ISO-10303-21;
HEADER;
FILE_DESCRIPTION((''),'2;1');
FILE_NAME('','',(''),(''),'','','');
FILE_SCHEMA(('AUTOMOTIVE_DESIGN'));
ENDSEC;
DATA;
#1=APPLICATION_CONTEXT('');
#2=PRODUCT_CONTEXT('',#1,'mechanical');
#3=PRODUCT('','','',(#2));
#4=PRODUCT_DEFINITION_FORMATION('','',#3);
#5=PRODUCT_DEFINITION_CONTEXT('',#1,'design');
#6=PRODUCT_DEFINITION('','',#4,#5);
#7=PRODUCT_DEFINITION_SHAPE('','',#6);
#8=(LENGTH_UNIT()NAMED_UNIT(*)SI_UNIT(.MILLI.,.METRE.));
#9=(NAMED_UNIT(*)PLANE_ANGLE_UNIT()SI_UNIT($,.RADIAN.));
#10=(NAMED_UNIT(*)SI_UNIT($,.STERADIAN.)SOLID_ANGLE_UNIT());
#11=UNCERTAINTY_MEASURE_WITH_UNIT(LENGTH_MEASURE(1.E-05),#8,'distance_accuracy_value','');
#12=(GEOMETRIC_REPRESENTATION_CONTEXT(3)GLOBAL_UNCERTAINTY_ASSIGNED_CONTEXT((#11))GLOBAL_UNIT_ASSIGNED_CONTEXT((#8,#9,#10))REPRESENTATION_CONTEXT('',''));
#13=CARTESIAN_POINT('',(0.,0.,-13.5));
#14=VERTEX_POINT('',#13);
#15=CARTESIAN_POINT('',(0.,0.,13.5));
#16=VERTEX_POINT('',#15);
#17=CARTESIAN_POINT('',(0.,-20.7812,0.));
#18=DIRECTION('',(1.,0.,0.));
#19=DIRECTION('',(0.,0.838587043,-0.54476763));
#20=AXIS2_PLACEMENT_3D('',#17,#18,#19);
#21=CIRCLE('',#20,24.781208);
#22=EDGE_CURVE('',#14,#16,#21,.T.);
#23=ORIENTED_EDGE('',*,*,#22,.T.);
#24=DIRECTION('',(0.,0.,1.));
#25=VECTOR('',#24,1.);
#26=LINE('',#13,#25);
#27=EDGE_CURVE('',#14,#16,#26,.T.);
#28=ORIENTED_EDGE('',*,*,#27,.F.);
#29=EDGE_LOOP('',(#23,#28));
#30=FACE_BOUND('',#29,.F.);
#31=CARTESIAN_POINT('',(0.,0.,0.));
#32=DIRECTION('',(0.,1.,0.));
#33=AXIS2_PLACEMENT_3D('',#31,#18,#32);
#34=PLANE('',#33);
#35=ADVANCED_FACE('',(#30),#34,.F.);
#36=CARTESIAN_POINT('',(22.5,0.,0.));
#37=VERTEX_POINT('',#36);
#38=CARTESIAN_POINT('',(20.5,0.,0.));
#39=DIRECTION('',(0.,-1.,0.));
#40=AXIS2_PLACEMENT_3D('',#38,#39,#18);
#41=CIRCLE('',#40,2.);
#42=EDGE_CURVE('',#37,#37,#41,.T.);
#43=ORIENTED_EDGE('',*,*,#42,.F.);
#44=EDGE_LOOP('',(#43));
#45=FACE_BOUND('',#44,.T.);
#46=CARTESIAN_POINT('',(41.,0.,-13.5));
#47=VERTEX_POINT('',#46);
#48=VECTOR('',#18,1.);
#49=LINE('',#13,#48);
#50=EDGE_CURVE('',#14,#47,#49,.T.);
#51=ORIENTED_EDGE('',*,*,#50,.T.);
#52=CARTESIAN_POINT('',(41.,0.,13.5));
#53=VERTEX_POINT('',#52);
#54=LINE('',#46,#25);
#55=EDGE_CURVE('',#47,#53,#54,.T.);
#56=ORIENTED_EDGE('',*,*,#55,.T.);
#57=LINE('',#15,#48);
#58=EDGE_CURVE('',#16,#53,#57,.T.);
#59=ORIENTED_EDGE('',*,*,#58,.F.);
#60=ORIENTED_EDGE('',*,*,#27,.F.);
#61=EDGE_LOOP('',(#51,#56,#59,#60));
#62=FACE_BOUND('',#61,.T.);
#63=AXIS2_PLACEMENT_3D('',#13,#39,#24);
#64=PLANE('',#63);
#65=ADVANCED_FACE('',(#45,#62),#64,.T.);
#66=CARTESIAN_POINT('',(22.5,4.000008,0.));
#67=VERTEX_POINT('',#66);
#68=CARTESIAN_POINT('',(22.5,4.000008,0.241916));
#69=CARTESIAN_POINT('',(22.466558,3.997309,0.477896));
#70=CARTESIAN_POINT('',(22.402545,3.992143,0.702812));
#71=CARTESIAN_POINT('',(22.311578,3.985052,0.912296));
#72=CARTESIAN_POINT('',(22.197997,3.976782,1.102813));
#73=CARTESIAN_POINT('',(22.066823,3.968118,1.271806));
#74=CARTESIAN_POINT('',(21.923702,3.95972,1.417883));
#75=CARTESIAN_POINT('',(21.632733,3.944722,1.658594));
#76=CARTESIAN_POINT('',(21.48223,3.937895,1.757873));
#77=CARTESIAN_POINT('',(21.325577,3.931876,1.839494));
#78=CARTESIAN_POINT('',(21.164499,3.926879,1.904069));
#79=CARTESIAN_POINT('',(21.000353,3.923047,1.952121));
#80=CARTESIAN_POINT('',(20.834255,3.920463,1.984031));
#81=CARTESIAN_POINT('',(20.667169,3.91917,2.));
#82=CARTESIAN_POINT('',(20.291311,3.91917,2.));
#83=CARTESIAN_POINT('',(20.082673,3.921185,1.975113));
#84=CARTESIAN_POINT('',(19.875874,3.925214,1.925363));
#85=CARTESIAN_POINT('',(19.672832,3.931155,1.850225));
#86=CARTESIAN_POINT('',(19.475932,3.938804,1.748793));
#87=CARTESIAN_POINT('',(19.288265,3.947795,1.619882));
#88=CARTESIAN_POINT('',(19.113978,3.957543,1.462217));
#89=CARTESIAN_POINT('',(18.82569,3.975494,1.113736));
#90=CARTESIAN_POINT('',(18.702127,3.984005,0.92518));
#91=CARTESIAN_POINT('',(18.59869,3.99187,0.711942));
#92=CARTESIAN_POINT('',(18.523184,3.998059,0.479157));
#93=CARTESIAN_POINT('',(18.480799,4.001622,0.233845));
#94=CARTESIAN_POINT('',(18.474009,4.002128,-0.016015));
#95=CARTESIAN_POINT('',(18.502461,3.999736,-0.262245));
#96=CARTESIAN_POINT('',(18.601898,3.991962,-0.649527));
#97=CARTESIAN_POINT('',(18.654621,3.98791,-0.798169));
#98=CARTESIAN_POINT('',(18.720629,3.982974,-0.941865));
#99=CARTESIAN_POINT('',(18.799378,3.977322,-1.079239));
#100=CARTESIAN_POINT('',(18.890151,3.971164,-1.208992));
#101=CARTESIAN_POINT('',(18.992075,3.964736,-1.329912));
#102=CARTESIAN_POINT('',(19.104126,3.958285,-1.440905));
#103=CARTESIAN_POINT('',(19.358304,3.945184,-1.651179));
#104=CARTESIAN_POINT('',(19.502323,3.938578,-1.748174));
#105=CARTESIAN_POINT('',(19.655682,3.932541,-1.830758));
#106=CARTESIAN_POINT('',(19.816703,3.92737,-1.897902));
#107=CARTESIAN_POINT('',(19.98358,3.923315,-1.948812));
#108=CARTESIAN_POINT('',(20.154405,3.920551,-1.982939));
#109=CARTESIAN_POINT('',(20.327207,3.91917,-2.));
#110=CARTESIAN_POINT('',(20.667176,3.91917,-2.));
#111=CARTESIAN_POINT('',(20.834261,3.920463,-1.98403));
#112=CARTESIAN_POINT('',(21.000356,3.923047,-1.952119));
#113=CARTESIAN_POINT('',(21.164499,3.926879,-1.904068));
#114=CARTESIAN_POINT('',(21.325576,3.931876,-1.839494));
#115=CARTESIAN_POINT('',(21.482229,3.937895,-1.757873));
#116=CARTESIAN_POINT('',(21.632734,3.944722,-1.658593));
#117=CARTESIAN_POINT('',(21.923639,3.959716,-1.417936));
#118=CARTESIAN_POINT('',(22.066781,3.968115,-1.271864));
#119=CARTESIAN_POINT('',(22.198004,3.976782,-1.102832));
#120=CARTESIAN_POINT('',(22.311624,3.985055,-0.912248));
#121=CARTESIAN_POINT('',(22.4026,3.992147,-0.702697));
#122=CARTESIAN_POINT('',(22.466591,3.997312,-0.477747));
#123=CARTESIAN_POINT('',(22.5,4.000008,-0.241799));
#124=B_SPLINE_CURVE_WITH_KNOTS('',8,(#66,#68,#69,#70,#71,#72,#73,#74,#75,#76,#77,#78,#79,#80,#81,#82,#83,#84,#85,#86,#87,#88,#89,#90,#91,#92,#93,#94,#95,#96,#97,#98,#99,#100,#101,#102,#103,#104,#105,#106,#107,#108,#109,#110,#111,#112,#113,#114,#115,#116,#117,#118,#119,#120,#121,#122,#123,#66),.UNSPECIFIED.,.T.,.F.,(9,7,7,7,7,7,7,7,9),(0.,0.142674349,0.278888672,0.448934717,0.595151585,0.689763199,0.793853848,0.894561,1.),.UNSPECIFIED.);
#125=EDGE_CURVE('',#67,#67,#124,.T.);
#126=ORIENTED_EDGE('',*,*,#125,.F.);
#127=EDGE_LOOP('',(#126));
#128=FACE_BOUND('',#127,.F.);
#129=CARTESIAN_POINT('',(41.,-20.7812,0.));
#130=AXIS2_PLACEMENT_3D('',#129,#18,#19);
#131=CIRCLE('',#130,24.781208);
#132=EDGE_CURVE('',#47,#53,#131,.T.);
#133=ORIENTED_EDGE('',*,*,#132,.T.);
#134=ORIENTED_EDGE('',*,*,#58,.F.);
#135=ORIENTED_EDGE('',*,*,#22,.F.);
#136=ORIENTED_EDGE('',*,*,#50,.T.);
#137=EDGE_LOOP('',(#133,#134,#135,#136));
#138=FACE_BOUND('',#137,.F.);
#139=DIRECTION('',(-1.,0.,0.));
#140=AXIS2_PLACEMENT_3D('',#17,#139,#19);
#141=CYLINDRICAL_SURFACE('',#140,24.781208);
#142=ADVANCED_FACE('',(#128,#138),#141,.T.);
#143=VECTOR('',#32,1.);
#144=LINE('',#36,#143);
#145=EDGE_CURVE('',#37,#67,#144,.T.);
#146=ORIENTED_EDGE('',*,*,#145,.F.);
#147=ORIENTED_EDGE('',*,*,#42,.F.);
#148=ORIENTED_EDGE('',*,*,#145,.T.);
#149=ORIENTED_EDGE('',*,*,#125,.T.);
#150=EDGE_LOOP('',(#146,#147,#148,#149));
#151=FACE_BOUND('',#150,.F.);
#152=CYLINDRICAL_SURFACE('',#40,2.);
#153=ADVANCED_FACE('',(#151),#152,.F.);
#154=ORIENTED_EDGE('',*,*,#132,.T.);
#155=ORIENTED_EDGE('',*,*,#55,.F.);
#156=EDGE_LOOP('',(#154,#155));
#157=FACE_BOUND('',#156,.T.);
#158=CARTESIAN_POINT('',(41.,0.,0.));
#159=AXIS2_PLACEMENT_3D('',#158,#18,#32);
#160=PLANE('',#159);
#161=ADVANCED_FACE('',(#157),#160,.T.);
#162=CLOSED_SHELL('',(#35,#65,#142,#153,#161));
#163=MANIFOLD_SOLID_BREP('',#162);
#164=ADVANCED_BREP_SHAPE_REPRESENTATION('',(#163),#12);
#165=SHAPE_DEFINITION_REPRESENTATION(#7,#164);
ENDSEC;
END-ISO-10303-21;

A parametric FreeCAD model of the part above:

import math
import FreeCAD as App
import Part
import Sketcher
Q = App.Units.Quantity

doc = App.newDocument("Part")
body = doc.addObject("PartDesign::Body", "Body")

# Sketch on YZ plane
sketch1 = doc.addObject("Sketcher::SketchObject", "Sketch")
body.addObject(sketch1)
sketch1.AttachmentSupport = (doc.YZ_Plane, [""])
sketch1.MapMode = "FlatFace"
sketch1.addGeometry([
    Part.LineSegment(App.Vector(0, 13.5, 0), App.Vector(0, -13.5, 0)),
    Part.ArcOfCircle(Part.Circle(App.Vector(-20.7812, 0, 0), App.Vector(0, 0, 1), 24.781208), math.radians(-33.008786), math.radians(33.008786)),
], False)
sketch1.addConstraint([
    Sketcher.Constraint("Coincident", 0, 1, 1, 2),
    Sketcher.Constraint("Coincident", 1, 1, 0, 2),
    Sketcher.Constraint("Vertical", 0),
    Sketcher.Constraint("Symmetric", 0, 1, 1, 1, -1, 1),
    Sketcher.Constraint("DistanceY", 0, 2, 0, 1, Q("27 mm")),
    Sketcher.Constraint("Radius", 1, Q("24.7812 mm")),
])
pad1 = doc.addObject("PartDesign::Pad", "Pad")
body.addObject(pad1)
pad1.Profile = sketch1
pad1.Length = 41

# Sketch on XZ plane
sketch2 = doc.addObject("Sketcher::SketchObject", "Sketch001")
body.addObject(sketch2)
sketch2.AttachmentSupport = (doc.XZ_Plane, [""])
sketch2.MapMode = "FlatFace"
sketch2.addGeometry(Part.Circle(App.Vector(20.5, 0, 0), App.Vector(0, 0, 1), 2), False)
sketch2.addConstraint([
    Sketcher.Constraint("PointOnObject", 0, 3, -1),
    Sketcher.Constraint("Diameter", 0, Q("4 mm")),
    Sketcher.Constraint("DistanceX", -1, 1, 0, 3, Q("20.5 mm")),
])
pocket1 = doc.addObject("PartDesign::Pocket", "Pocket")
body.addObject(pocket1)
pocket1.Profile = sketch2
pocket1.Type = "ThroughAll"

doc.recompute()
